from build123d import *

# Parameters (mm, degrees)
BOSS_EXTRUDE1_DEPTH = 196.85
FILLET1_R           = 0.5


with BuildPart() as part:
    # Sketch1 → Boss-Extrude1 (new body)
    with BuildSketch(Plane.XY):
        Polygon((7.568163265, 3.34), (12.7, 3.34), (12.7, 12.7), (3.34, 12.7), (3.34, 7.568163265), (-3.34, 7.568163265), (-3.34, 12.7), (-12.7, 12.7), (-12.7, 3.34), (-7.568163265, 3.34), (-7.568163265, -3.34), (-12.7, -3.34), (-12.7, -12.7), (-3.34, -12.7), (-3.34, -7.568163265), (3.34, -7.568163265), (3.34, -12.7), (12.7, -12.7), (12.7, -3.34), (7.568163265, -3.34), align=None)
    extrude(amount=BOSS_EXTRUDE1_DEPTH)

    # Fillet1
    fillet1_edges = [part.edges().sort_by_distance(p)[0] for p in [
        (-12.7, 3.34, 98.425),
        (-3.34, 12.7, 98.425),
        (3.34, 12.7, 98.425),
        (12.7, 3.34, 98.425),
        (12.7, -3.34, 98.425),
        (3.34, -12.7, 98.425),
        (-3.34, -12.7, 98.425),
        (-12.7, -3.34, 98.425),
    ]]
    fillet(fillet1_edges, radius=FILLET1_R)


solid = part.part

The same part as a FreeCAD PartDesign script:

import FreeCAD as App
import Part
import Sketcher
from FreeCAD import Vector
Q = App.Units.Quantity


def edges_at(feature, points):
    """Names of the edges that pass closest to the given points."""
    edges = feature.Shape.Edges
    near = lambda p: min(range(len(edges)), key=lambda i: edges[i].distToShape(Part.Vertex(*p))[0])
    return sorted({f"Edge{near(p) + 1}" for p in points})

doc = App.newDocument("Part")
body = doc.addObject("PartDesign::Body", "Body")

# Sketch on XY plane
sketch1 = body.newObject("Sketcher::SketchObject", "Sketch")
sketch1.AttachmentSupport = (doc.getObject("XY_Plane"), [""])
sketch1.MapMode = "FlatFace"
sketch1.addGeometry(Part.LineSegment(Vector(8, 3, 0), Vector(13, 3, 0)), False)
sketch1.addGeometry(Part.LineSegment(Vector(13, 3, 0), Vector(13, 13, 0)), False)
sketch1.addGeometry(Part.LineSegment(Vector(13, 13, 0), Vector(3, 13, 0)), False)
sketch1.addGeometry(Part.LineSegment(Vector(3, 13, 0), Vector(3, 8, 0)), False)
sketch1.addGeometry(Part.LineSegment(Vector(3, 8, 0), Vector(-3, 8, 0)), False)
sketch1.addGeometry(Part.LineSegment(Vector(-3, 8, 0), Vector(-3, 13, 0)), False)
sketch1.addGeometry(Part.LineSegment(Vector(-3, 13, 0), Vector(-13, 13, 0)), False)
sketch1.addGeometry(Part.LineSegment(Vector(-13, 13, 0), Vector(-13, 3, 0)), False)
sketch1.addGeometry(Part.LineSegment(Vector(-13, 3, 0), Vector(-8, 3, 0)), False)
sketch1.addGeometry(Part.LineSegment(Vector(-8, 3, 0), Vector(-8, -3, 0)), False)
sketch1.addGeometry(Part.LineSegment(Vector(-8, -3, 0), Vector(-13, -3, 0)), False)
sketch1.addGeometry(Part.LineSegment(Vector(-13, -3, 0), Vector(-13, -13, 0)), False)
sketch1.addGeometry(Part.LineSegment(Vector(-13, -13, 0), Vector(-3, -13, 0)), False)
sketch1.addGeometry(Part.LineSegment(Vector(-3, -13, 0), Vector(-3, -8, 0)), False)
sketch1.addGeometry(Part.LineSegment(Vector(-3, -8, 0), Vector(3, -8, 0)), False)
sketch1.addGeometry(Part.LineSegment(Vector(3, -8, 0), Vector(3, -13, 0)), False)
sketch1.addGeometry(Part.LineSegment(Vector(3, -13, 0), Vector(13, -13, 0)), False)
sketch1.addGeometry(Part.LineSegment(Vector(13, -13, 0), Vector(13, -3, 0)), False)
sketch1.addGeometry(Part.LineSegment(Vector(13, -3, 0), Vector(8, -3, 0)), False)
sketch1.addGeometry(Part.LineSegment(Vector(8, -3, 0), Vector(8, 3, 0)), False)
sketch1.addConstraint(Sketcher.Constraint("Coincident", 0, 2, 1, 1))
sketch1.addConstraint(Sketcher.Constraint("Coincident", 1, 2, 2, 1))
sketch1.addConstraint(Sketcher.Constraint("Coincident", 2, 2, 3, 1))
sketch1.addConstraint(Sketcher.Constraint("Coincident", 3, 2, 4, 1))
sketch1.addConstraint(Sketcher.Constraint("Coincident", 4, 2, 5, 1))
sketch1.addConstraint(Sketcher.Constraint("Coincident", 5, 2, 6, 1))
sketch1.addConstraint(Sketcher.Constraint("Coincident", 6, 2, 7, 1))
sketch1.addConstraint(Sketcher.Constraint("Coincident", 7, 2, 8, 1))
sketch1.addConstraint(Sketcher.Constraint("Coincident", 8, 2, 9, 1))
sketch1.addConstraint(Sketcher.Constraint("Coincident", 9, 2, 10, 1))
sketch1.addConstraint(Sketcher.Constraint("Coincident", 10, 2, 11, 1))
sketch1.addConstraint(Sketcher.Constraint("Coincident", 11, 2, 12, 1))
sketch1.addConstraint(Sketcher.Constraint("Coincident", 12, 2, 13, 1))
sketch1.addConstraint(Sketcher.Constraint("Coincident", 13, 2, 14, 1))
sketch1.addConstraint(Sketcher.Constraint("Coincident", 14, 2, 15, 1))
sketch1.addConstraint(Sketcher.Constraint("Coincident", 15, 2, 16, 1))
sketch1.addConstraint(Sketcher.Constraint("Coincident", 16, 2, 17, 1))
sketch1.addConstraint(Sketcher.Constraint("Coincident", 17, 2, 18, 1))
sketch1.addConstraint(Sketcher.Constraint("Coincident", 18, 2, 19, 1))
sketch1.addConstraint(Sketcher.Constraint("Coincident", 19, 2, 0, 1))
sketch1.addConstraint(Sketcher.Constraint("Horizontal", 0))
sketch1.addConstraint(Sketcher.Constraint("Vertical", 1))
sketch1.addConstraint(Sketcher.Constraint("Horizontal", 2))
sketch1.addConstraint(Sketcher.Constraint("Vertical", 3))
sketch1.addConstraint(Sketcher.Constraint("Horizontal", 4))
sketch1.addConstraint(Sketcher.Constraint("Vertical", 5))
sketch1.addConstraint(Sketcher.Constraint("Horizontal", 6))
sketch1.addConstraint(Sketcher.Constraint("Vertical", 7))
sketch1.addConstraint(Sketcher.Constraint("Horizontal", 8))
sketch1.addConstraint(Sketcher.Constraint("Vertical", 9))
sketch1.addConstraint(Sketcher.Constraint("Horizontal", 10))
sketch1.addConstraint(Sketcher.Constraint("Vertical", 11))
sketch1.addConstraint(Sketcher.Constraint("Horizontal", 12))
sketch1.addConstraint(Sketcher.Constraint("Vertical", 13))
sketch1.addConstraint(Sketcher.Constraint("Horizontal", 14))
sketch1.addConstraint(Sketcher.Constraint("Vertical", 15))
sketch1.addConstraint(Sketcher.Constraint("Horizontal", 16))
sketch1.addConstraint(Sketcher.Constraint("Vertical", 17))
sketch1.addConstraint(Sketcher.Constraint("Horizontal", 18))
sketch1.addConstraint(Sketcher.Constraint("Vertical", 19))
sketch1.addConstraint(Sketcher.Constraint("Symmetric", 0, 2, 10, 2, -1, 1))
sketch1.addConstraint(Sketcher.Constraint("Symmetric", 2, 2, 12, 2, -1, 1))
sketch1.addConstraint(Sketcher.Constraint("Symmetric", 4, 2, 14, 2, -1, 1))
sketch1.addConstraint(Sketcher.Constraint("Symmetric", 6, 2, 16, 2, -1, 1))
sketch1.addConstraint(Sketcher.Constraint("Symmetric", 8, 2, 18, 2, -1, 1))
sketch1.addConstraint(Sketcher.Constraint("Symmetric", 2, 2, 5, 2, -2))
sketch1.addConstraint(Sketcher.Constraint("Symmetric", 0, 2, 7, 2, -2))
sketch1.addConstraint(Sketcher.Constraint("Equal", 16, 1))
sketch1.addConstraint(Sketcher.Constraint("Equal", 18, 3))
sketch1.addConstraint(Sketcher.Constraint("Equal", 14, 9))
sketch1.addConstraint(Sketcher.Constraint("DistanceX", 2, 2, 2, 1, Q("9.36 mm")))
sketch1.addConstraint(Sketcher.Constraint("DistanceX", 4, 2, 4, 1, Q("6.68 mm")))
sketch1.addConstraint(Sketcher.Constraint("DistanceX", 0, 1, 0, 2, Q("5.131837 mm")))
pad1 = body.newObject("PartDesign::Pad", "Pad")
pad1.Profile = sketch1
pad1.Length = 196.85
doc.recompute()

fillet = body.newObject("PartDesign::Fillet", "Fillet")
fillet.Base = (pad1, edges_at(pad1, [
    (-12.7, 3.34, 98.425),
    (-3.34, 12.7, 98.425),
    (3.34, 12.7, 98.425),
    (12.7, 3.34, 98.425),
    (12.7, -3.34, 98.425),
    (3.34, -12.7, 98.425),
    (-3.34, -12.7, 98.425),
    (-12.7, -3.34, 98.425),
]))
fillet.Radius = 0.5

doc.recompute()
